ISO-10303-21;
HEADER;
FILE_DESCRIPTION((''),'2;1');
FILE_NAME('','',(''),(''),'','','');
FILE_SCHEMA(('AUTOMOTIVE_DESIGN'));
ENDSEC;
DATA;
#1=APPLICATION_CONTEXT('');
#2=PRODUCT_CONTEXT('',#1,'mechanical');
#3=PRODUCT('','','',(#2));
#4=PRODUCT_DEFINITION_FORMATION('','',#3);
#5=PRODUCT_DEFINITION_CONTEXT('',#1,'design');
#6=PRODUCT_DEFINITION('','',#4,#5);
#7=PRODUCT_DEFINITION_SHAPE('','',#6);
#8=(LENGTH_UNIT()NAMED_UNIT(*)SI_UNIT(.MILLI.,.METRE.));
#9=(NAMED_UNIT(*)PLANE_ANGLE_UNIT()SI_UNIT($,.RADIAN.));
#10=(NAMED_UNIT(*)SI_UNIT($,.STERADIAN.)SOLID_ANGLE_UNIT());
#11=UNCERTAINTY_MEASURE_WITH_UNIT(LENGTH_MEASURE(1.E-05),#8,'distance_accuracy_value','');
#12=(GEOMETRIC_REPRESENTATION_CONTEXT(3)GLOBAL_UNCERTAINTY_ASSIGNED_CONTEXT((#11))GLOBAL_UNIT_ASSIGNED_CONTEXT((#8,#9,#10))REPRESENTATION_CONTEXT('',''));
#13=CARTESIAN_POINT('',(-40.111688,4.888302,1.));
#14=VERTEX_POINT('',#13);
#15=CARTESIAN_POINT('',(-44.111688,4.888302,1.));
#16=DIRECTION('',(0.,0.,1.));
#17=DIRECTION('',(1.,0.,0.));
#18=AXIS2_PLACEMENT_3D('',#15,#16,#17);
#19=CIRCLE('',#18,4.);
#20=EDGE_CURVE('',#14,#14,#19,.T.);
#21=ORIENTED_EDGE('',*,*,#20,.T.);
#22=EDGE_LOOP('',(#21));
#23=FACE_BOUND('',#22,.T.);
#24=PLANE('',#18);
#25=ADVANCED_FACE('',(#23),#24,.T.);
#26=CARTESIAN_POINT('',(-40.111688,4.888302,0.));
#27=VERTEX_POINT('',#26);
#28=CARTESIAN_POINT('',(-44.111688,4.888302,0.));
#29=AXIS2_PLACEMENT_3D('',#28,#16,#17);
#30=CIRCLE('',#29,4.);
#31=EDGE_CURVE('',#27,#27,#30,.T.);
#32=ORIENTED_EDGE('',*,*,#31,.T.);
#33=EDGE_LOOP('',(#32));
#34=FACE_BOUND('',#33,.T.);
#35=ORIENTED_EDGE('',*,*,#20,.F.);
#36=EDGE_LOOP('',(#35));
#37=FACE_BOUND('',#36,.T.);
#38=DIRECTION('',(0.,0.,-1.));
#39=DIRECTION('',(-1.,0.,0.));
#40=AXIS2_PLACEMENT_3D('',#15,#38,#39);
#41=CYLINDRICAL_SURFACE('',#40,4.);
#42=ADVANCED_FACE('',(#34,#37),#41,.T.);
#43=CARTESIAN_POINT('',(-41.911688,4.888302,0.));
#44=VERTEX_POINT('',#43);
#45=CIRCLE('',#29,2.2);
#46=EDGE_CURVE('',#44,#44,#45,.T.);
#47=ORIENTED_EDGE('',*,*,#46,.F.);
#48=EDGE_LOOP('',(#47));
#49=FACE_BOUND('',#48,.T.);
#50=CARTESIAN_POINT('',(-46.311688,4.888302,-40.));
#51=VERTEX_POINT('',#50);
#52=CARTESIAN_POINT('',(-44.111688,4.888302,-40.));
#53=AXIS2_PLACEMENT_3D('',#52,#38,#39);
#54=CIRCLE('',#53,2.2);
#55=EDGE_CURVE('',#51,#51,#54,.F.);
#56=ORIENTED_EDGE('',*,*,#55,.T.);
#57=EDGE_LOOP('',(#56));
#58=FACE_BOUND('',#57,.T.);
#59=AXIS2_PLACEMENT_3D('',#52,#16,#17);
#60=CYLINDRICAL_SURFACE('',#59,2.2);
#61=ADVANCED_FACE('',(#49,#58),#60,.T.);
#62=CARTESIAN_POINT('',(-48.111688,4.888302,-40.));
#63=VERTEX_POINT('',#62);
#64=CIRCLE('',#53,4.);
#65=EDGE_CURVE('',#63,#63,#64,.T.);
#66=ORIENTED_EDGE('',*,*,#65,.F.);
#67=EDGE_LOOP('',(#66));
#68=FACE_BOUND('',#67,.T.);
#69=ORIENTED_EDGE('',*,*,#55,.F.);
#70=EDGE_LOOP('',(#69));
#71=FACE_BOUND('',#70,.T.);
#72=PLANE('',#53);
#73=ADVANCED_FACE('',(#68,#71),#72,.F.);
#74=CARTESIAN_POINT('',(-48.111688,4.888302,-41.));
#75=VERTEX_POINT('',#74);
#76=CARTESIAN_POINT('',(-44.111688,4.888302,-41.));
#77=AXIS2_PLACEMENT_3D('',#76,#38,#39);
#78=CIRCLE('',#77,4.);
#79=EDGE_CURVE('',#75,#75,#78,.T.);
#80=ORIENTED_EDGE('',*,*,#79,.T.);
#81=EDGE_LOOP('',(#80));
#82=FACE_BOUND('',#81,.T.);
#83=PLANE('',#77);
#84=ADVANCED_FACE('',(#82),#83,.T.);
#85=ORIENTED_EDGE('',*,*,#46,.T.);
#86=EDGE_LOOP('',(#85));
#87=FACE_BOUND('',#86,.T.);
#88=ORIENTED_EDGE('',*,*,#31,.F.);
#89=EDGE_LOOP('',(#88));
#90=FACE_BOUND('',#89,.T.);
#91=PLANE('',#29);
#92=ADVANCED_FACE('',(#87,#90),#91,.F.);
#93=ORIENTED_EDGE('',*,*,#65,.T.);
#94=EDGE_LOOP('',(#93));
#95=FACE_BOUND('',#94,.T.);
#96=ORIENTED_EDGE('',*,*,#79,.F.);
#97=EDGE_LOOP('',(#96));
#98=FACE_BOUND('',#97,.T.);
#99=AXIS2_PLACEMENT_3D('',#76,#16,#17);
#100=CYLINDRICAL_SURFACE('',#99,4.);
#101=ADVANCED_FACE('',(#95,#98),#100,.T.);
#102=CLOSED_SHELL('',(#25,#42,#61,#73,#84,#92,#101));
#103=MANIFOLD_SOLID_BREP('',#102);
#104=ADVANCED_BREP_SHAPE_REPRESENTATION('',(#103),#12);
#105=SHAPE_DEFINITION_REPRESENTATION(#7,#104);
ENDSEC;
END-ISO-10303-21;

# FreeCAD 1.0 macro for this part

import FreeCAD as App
import Part
import Sketcher
from FreeCAD import Vector

doc = App.newDocument("Part")
body = doc.addObject("PartDesign::Body", "Body")

sketch1 = doc.addObject("Sketcher::SketchObject", "Sketch")
body.addObject(sketch1)
sketch1.AttachmentSupport = (doc.XY_Plane, [""])
sketch1.MapMode = "FlatFace"
sketch1.addGeometry(Part.Circle(Vector(-44.1, 4.9, 0), Vector(0, 0, 1), 2.2), False)
sketch1.addConstraint([
    Sketcher.Constraint("Diameter", 0, 4.4),
    Sketcher.Constraint("DistanceY", -1, 1, 0, 3, 4.888302),
    Sketcher.Constraint("DistanceX", 0, 3, -1, 1, 44.111688),
])
pad1 = doc.addObject("PartDesign::Pad", "Pad")
body.addObject(pad1)
pad1.Profile = sketch1
pad1.Length = 40
pad1.Reversed = True

sketch2 = doc.addObject("Sketcher::SketchObject", "Sketch001")
body.addObject(sketch2)
sketch2.AttachmentSupport = (doc.XY_Plane, [""])
sketch2.MapMode = "FlatFace"
sketch2.addGeometry(Part.Circle(Vector(-44.1, 4.9, 0), Vector(0, 0, 1), 4), False)
sketch2.addConstraint([
    Sketcher.Constraint("Diameter", 0, 8.0),
    Sketcher.Constraint("DistanceY", -1, 1, 0, 3, 4.888302),
    Sketcher.Constraint("DistanceX", 0, 3, -1, 1, 44.111688),
])
pad2 = doc.addObject("PartDesign::Pad", "Pad001")
body.addObject(pad2)
pad2.Profile = sketch2
pad2.Length = 1

sketch3 = doc.addObject("Sketcher::SketchObject", "Sketch002")
body.addObject(sketch3)
sketch3.AttachmentSupport = (doc.XY_Plane, [""])
sketch3.MapMode = "FlatFace"
sketch3.AttachmentOffset = App.Placement(Vector(0, 0, -40), App.Rotation())
sketch3.addGeometry(Part.Circle(Vector(-44.1, 4.9, 0), Vector(0, 0, 1), 4), False)
sketch3.addConstraint([
    Sketcher.Constraint("Diameter", 0, 8.0),
    Sketcher.Constraint("DistanceY", -1, 1, 0, 3, 4.888302),
    Sketcher.Constraint("DistanceX", 0, 3, -1, 1, 44.111688),
])
pad3 = doc.addObject("PartDesign::Pad", "Pad002")
body.addObject(pad3)
pad3.Profile = sketch3
pad3.Length = 1
pad3.Reversed = True

doc.recompute()
